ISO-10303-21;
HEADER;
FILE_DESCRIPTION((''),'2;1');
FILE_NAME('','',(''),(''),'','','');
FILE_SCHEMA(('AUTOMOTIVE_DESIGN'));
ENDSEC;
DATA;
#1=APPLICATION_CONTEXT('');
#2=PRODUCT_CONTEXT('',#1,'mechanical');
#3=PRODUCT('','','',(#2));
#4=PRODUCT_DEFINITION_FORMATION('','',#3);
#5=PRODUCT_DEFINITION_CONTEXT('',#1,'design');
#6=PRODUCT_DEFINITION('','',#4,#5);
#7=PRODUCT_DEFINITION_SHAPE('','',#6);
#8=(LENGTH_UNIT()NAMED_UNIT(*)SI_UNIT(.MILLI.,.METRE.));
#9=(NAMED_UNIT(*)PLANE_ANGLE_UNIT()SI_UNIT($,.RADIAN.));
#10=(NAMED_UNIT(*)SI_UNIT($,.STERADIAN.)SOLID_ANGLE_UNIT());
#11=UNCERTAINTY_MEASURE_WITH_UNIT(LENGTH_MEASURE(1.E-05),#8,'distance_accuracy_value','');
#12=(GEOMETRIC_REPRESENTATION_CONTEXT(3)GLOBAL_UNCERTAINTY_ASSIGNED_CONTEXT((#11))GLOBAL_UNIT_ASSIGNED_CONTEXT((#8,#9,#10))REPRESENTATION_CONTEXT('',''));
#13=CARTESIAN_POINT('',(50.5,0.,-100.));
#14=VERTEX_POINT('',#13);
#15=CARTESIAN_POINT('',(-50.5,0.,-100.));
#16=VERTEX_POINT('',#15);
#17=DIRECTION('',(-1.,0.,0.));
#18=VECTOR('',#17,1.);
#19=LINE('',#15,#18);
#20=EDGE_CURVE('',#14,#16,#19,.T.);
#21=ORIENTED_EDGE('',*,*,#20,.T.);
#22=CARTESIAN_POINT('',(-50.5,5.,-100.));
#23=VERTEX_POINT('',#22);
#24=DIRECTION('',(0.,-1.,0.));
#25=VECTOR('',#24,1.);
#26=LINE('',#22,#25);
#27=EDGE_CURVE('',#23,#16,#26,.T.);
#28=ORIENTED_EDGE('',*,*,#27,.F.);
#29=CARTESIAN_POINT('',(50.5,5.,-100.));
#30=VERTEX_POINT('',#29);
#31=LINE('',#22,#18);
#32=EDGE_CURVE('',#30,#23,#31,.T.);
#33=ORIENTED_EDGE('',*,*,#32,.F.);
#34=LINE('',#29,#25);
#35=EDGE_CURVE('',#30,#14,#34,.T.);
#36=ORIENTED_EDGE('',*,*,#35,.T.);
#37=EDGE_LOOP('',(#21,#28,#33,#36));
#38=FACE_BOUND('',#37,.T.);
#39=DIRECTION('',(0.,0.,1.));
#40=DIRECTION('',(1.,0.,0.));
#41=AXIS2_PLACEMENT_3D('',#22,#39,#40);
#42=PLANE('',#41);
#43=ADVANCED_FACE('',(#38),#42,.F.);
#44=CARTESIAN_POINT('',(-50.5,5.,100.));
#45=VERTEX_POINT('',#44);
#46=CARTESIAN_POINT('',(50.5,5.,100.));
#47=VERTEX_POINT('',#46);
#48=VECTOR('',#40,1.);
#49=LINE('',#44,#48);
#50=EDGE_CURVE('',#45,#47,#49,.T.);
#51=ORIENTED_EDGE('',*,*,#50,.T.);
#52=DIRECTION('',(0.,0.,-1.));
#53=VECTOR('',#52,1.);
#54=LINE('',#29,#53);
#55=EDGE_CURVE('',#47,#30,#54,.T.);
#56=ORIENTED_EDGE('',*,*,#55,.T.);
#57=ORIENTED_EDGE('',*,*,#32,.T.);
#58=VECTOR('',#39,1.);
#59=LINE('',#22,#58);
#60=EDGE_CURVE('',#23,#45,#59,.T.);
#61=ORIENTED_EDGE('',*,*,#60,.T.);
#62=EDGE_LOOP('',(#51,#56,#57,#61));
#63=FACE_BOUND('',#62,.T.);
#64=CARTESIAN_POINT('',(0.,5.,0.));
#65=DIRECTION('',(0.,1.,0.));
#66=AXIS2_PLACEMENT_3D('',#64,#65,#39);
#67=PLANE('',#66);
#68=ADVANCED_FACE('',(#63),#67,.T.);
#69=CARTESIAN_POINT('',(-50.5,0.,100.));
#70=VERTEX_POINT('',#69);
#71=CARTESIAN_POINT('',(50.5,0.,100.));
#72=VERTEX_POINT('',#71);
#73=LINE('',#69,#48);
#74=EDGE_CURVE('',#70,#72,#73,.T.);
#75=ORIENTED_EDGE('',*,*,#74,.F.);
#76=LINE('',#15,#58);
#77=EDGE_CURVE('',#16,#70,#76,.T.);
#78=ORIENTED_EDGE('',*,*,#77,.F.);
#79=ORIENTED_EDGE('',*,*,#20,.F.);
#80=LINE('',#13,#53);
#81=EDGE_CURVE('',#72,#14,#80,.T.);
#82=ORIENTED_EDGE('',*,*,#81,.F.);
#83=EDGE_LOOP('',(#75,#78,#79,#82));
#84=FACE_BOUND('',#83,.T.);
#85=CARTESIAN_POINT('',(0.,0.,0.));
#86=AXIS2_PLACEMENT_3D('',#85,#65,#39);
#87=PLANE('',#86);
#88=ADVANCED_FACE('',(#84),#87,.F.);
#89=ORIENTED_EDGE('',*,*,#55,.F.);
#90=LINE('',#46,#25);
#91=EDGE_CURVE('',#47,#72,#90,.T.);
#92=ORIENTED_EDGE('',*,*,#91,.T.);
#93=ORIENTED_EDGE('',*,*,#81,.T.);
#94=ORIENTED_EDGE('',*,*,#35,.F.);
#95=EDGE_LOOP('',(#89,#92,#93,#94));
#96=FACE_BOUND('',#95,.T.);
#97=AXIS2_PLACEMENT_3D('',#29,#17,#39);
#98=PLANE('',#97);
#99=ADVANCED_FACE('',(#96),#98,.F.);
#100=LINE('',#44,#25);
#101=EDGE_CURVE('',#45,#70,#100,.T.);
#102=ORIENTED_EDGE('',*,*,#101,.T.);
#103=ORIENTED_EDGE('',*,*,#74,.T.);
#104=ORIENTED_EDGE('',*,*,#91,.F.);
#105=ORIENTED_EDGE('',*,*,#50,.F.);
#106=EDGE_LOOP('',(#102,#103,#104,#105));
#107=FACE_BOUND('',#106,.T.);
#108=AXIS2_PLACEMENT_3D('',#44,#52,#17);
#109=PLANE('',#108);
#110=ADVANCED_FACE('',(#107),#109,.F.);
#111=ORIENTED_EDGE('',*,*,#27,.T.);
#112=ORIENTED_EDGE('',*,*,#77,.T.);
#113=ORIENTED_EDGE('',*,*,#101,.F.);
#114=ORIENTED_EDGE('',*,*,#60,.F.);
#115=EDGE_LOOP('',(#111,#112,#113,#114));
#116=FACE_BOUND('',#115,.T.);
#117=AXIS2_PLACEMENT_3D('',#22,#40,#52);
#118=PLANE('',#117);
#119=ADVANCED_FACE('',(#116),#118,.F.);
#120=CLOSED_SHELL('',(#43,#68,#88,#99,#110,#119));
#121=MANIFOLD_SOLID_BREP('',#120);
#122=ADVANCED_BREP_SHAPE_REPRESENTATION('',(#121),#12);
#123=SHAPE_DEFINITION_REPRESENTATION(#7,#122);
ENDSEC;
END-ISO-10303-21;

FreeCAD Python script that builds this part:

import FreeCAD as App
import Part
import Sketcher

doc = App.newDocument("Part")
params = doc.addObject("Spreadsheet::Sheet", "Params")
for row, (alias, value) in enumerate([
    ("sketch1_width", "101 mm"),
    ("sketch1_height", "200 mm"),
    ("pad1_length", "5 mm"),
], start=1):
    params.set(f"A{row}", alias)
    params.set(f"B{row}", "=" + value)
    params.setAlias(f"B{row}", alias)

body = doc.addObject("PartDesign::Body", "Body")

sketch1 = doc.addObject("Sketcher::SketchObject", "Sketch")
body.addObject(sketch1)
sketch1.AttachmentSupport = (doc.XZ_Plane, [""])
sketch1.MapMode = "FlatFace"
sketch1.addGeometry([
    Part.LineSegment(App.Vector(-50, -100, 0), App.Vector(-50, 100, 0)),
    Part.LineSegment(App.Vector(-50, 100, 0), App.Vector(50, 100, 0)),
    Part.LineSegment(App.Vector(50, 100, 0), App.Vector(50, -100, 0)),
    Part.LineSegment(App.Vector(50, -100, 0), App.Vector(-50, -100, 0)),
], False)
sketch1.addConstraint([
    Sketcher.Constraint("Coincident", 0, 2, 1, 1),
    Sketcher.Constraint("Coincident", 1, 2, 2, 1),
    Sketcher.Constraint("Coincident", 2, 2, 3, 1),
    Sketcher.Constraint("Coincident", 3, 2, 0, 1),
    Sketcher.Constraint("Vertical", 0),
    Sketcher.Constraint("Horizontal", 1),
    Sketcher.Constraint("Vertical", 2),
    Sketcher.Constraint("Horizontal", 3),
    Sketcher.Constraint("Symmetric", 0, 2, 2, 2, -1, 1),
    Sketcher.Constraint("DistanceX", 1, 1, 1, 2, 101.0),
    Sketcher.Constraint("DistanceY", 0, 1, 0, 2, 200.0),
])
sketch1.setExpression("Constraints[9]", "Params.sketch1_width")
sketch1.setExpression("Constraints[10]", "Params.sketch1_height")
pad1 = doc.addObject("PartDesign::Pad", "Pad")
body.addObject(pad1)
pad1.Profile = sketch1
pad1.setExpression("Length", "Params.pad1_length")
pad1.Reversed = True

doc.recompute()
